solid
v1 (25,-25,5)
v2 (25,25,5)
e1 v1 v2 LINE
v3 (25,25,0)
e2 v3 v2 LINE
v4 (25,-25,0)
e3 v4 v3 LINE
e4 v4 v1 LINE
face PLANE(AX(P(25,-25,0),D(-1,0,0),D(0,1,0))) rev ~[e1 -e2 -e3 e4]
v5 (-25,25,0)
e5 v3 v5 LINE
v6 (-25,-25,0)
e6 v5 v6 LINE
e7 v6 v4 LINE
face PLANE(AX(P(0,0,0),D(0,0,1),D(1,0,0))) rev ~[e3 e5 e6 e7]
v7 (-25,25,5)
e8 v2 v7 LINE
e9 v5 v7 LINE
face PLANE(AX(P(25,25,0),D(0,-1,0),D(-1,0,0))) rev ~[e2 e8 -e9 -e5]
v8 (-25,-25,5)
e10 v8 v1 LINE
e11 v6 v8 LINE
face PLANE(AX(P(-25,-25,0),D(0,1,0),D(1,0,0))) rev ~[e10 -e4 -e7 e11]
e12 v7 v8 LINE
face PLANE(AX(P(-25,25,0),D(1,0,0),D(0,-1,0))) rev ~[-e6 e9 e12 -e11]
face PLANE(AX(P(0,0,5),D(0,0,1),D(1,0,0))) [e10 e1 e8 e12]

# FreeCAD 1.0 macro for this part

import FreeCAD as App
import Part
import Sketcher


def add_polygon(sketch, points):
    """Adds a closed chain of lines whose ends are joined by coincident constraints."""
    first, n = sketch.GeometryCount, len(points)
    for a, b in zip(points, points[1:] + points[:1]):
        sketch.addGeometry(Part.LineSegment(App.Vector(*a, 0), App.Vector(*b, 0)), False)
    for i in range(n):
        sketch.addConstraint(Sketcher.Constraint("Coincident", first + i, 2, first + (i + 1) % n, 1))

doc = App.newDocument("Part")
body = doc.addObject("PartDesign::Body", "Body")

# Sketch on XY plane
sketch1 = body.newObject("Sketcher::SketchObject", "Sketch")
sketch1.AttachmentSupport = (doc.getObject("XY_Plane"), [""])
sketch1.MapMode = "FlatFace"
add_polygon(sketch1, [(-25, 25), (-25, -25), (25, -25), (25, 25)])  # lines 0-3
sketch1.addConstraint([
    Sketcher.Constraint("Vertical", 0),
    Sketcher.Constraint("Horizontal", 1),
    Sketcher.Constraint("Vertical", 2),
    Sketcher.Constraint("Horizontal", 3),
    Sketcher.Constraint("Symmetric", 0, 2, 2, 2, -1, 1),
    Sketcher.Constraint("Equal", 3, 0),
    Sketcher.Constraint("DistanceX", 1, 1, 1, 2, 50.0),
])
pad1 = body.newObject("PartDesign::Pad", "Pad")
pad1.Profile = sketch1
pad1.Length = 5

doc.recompute()
